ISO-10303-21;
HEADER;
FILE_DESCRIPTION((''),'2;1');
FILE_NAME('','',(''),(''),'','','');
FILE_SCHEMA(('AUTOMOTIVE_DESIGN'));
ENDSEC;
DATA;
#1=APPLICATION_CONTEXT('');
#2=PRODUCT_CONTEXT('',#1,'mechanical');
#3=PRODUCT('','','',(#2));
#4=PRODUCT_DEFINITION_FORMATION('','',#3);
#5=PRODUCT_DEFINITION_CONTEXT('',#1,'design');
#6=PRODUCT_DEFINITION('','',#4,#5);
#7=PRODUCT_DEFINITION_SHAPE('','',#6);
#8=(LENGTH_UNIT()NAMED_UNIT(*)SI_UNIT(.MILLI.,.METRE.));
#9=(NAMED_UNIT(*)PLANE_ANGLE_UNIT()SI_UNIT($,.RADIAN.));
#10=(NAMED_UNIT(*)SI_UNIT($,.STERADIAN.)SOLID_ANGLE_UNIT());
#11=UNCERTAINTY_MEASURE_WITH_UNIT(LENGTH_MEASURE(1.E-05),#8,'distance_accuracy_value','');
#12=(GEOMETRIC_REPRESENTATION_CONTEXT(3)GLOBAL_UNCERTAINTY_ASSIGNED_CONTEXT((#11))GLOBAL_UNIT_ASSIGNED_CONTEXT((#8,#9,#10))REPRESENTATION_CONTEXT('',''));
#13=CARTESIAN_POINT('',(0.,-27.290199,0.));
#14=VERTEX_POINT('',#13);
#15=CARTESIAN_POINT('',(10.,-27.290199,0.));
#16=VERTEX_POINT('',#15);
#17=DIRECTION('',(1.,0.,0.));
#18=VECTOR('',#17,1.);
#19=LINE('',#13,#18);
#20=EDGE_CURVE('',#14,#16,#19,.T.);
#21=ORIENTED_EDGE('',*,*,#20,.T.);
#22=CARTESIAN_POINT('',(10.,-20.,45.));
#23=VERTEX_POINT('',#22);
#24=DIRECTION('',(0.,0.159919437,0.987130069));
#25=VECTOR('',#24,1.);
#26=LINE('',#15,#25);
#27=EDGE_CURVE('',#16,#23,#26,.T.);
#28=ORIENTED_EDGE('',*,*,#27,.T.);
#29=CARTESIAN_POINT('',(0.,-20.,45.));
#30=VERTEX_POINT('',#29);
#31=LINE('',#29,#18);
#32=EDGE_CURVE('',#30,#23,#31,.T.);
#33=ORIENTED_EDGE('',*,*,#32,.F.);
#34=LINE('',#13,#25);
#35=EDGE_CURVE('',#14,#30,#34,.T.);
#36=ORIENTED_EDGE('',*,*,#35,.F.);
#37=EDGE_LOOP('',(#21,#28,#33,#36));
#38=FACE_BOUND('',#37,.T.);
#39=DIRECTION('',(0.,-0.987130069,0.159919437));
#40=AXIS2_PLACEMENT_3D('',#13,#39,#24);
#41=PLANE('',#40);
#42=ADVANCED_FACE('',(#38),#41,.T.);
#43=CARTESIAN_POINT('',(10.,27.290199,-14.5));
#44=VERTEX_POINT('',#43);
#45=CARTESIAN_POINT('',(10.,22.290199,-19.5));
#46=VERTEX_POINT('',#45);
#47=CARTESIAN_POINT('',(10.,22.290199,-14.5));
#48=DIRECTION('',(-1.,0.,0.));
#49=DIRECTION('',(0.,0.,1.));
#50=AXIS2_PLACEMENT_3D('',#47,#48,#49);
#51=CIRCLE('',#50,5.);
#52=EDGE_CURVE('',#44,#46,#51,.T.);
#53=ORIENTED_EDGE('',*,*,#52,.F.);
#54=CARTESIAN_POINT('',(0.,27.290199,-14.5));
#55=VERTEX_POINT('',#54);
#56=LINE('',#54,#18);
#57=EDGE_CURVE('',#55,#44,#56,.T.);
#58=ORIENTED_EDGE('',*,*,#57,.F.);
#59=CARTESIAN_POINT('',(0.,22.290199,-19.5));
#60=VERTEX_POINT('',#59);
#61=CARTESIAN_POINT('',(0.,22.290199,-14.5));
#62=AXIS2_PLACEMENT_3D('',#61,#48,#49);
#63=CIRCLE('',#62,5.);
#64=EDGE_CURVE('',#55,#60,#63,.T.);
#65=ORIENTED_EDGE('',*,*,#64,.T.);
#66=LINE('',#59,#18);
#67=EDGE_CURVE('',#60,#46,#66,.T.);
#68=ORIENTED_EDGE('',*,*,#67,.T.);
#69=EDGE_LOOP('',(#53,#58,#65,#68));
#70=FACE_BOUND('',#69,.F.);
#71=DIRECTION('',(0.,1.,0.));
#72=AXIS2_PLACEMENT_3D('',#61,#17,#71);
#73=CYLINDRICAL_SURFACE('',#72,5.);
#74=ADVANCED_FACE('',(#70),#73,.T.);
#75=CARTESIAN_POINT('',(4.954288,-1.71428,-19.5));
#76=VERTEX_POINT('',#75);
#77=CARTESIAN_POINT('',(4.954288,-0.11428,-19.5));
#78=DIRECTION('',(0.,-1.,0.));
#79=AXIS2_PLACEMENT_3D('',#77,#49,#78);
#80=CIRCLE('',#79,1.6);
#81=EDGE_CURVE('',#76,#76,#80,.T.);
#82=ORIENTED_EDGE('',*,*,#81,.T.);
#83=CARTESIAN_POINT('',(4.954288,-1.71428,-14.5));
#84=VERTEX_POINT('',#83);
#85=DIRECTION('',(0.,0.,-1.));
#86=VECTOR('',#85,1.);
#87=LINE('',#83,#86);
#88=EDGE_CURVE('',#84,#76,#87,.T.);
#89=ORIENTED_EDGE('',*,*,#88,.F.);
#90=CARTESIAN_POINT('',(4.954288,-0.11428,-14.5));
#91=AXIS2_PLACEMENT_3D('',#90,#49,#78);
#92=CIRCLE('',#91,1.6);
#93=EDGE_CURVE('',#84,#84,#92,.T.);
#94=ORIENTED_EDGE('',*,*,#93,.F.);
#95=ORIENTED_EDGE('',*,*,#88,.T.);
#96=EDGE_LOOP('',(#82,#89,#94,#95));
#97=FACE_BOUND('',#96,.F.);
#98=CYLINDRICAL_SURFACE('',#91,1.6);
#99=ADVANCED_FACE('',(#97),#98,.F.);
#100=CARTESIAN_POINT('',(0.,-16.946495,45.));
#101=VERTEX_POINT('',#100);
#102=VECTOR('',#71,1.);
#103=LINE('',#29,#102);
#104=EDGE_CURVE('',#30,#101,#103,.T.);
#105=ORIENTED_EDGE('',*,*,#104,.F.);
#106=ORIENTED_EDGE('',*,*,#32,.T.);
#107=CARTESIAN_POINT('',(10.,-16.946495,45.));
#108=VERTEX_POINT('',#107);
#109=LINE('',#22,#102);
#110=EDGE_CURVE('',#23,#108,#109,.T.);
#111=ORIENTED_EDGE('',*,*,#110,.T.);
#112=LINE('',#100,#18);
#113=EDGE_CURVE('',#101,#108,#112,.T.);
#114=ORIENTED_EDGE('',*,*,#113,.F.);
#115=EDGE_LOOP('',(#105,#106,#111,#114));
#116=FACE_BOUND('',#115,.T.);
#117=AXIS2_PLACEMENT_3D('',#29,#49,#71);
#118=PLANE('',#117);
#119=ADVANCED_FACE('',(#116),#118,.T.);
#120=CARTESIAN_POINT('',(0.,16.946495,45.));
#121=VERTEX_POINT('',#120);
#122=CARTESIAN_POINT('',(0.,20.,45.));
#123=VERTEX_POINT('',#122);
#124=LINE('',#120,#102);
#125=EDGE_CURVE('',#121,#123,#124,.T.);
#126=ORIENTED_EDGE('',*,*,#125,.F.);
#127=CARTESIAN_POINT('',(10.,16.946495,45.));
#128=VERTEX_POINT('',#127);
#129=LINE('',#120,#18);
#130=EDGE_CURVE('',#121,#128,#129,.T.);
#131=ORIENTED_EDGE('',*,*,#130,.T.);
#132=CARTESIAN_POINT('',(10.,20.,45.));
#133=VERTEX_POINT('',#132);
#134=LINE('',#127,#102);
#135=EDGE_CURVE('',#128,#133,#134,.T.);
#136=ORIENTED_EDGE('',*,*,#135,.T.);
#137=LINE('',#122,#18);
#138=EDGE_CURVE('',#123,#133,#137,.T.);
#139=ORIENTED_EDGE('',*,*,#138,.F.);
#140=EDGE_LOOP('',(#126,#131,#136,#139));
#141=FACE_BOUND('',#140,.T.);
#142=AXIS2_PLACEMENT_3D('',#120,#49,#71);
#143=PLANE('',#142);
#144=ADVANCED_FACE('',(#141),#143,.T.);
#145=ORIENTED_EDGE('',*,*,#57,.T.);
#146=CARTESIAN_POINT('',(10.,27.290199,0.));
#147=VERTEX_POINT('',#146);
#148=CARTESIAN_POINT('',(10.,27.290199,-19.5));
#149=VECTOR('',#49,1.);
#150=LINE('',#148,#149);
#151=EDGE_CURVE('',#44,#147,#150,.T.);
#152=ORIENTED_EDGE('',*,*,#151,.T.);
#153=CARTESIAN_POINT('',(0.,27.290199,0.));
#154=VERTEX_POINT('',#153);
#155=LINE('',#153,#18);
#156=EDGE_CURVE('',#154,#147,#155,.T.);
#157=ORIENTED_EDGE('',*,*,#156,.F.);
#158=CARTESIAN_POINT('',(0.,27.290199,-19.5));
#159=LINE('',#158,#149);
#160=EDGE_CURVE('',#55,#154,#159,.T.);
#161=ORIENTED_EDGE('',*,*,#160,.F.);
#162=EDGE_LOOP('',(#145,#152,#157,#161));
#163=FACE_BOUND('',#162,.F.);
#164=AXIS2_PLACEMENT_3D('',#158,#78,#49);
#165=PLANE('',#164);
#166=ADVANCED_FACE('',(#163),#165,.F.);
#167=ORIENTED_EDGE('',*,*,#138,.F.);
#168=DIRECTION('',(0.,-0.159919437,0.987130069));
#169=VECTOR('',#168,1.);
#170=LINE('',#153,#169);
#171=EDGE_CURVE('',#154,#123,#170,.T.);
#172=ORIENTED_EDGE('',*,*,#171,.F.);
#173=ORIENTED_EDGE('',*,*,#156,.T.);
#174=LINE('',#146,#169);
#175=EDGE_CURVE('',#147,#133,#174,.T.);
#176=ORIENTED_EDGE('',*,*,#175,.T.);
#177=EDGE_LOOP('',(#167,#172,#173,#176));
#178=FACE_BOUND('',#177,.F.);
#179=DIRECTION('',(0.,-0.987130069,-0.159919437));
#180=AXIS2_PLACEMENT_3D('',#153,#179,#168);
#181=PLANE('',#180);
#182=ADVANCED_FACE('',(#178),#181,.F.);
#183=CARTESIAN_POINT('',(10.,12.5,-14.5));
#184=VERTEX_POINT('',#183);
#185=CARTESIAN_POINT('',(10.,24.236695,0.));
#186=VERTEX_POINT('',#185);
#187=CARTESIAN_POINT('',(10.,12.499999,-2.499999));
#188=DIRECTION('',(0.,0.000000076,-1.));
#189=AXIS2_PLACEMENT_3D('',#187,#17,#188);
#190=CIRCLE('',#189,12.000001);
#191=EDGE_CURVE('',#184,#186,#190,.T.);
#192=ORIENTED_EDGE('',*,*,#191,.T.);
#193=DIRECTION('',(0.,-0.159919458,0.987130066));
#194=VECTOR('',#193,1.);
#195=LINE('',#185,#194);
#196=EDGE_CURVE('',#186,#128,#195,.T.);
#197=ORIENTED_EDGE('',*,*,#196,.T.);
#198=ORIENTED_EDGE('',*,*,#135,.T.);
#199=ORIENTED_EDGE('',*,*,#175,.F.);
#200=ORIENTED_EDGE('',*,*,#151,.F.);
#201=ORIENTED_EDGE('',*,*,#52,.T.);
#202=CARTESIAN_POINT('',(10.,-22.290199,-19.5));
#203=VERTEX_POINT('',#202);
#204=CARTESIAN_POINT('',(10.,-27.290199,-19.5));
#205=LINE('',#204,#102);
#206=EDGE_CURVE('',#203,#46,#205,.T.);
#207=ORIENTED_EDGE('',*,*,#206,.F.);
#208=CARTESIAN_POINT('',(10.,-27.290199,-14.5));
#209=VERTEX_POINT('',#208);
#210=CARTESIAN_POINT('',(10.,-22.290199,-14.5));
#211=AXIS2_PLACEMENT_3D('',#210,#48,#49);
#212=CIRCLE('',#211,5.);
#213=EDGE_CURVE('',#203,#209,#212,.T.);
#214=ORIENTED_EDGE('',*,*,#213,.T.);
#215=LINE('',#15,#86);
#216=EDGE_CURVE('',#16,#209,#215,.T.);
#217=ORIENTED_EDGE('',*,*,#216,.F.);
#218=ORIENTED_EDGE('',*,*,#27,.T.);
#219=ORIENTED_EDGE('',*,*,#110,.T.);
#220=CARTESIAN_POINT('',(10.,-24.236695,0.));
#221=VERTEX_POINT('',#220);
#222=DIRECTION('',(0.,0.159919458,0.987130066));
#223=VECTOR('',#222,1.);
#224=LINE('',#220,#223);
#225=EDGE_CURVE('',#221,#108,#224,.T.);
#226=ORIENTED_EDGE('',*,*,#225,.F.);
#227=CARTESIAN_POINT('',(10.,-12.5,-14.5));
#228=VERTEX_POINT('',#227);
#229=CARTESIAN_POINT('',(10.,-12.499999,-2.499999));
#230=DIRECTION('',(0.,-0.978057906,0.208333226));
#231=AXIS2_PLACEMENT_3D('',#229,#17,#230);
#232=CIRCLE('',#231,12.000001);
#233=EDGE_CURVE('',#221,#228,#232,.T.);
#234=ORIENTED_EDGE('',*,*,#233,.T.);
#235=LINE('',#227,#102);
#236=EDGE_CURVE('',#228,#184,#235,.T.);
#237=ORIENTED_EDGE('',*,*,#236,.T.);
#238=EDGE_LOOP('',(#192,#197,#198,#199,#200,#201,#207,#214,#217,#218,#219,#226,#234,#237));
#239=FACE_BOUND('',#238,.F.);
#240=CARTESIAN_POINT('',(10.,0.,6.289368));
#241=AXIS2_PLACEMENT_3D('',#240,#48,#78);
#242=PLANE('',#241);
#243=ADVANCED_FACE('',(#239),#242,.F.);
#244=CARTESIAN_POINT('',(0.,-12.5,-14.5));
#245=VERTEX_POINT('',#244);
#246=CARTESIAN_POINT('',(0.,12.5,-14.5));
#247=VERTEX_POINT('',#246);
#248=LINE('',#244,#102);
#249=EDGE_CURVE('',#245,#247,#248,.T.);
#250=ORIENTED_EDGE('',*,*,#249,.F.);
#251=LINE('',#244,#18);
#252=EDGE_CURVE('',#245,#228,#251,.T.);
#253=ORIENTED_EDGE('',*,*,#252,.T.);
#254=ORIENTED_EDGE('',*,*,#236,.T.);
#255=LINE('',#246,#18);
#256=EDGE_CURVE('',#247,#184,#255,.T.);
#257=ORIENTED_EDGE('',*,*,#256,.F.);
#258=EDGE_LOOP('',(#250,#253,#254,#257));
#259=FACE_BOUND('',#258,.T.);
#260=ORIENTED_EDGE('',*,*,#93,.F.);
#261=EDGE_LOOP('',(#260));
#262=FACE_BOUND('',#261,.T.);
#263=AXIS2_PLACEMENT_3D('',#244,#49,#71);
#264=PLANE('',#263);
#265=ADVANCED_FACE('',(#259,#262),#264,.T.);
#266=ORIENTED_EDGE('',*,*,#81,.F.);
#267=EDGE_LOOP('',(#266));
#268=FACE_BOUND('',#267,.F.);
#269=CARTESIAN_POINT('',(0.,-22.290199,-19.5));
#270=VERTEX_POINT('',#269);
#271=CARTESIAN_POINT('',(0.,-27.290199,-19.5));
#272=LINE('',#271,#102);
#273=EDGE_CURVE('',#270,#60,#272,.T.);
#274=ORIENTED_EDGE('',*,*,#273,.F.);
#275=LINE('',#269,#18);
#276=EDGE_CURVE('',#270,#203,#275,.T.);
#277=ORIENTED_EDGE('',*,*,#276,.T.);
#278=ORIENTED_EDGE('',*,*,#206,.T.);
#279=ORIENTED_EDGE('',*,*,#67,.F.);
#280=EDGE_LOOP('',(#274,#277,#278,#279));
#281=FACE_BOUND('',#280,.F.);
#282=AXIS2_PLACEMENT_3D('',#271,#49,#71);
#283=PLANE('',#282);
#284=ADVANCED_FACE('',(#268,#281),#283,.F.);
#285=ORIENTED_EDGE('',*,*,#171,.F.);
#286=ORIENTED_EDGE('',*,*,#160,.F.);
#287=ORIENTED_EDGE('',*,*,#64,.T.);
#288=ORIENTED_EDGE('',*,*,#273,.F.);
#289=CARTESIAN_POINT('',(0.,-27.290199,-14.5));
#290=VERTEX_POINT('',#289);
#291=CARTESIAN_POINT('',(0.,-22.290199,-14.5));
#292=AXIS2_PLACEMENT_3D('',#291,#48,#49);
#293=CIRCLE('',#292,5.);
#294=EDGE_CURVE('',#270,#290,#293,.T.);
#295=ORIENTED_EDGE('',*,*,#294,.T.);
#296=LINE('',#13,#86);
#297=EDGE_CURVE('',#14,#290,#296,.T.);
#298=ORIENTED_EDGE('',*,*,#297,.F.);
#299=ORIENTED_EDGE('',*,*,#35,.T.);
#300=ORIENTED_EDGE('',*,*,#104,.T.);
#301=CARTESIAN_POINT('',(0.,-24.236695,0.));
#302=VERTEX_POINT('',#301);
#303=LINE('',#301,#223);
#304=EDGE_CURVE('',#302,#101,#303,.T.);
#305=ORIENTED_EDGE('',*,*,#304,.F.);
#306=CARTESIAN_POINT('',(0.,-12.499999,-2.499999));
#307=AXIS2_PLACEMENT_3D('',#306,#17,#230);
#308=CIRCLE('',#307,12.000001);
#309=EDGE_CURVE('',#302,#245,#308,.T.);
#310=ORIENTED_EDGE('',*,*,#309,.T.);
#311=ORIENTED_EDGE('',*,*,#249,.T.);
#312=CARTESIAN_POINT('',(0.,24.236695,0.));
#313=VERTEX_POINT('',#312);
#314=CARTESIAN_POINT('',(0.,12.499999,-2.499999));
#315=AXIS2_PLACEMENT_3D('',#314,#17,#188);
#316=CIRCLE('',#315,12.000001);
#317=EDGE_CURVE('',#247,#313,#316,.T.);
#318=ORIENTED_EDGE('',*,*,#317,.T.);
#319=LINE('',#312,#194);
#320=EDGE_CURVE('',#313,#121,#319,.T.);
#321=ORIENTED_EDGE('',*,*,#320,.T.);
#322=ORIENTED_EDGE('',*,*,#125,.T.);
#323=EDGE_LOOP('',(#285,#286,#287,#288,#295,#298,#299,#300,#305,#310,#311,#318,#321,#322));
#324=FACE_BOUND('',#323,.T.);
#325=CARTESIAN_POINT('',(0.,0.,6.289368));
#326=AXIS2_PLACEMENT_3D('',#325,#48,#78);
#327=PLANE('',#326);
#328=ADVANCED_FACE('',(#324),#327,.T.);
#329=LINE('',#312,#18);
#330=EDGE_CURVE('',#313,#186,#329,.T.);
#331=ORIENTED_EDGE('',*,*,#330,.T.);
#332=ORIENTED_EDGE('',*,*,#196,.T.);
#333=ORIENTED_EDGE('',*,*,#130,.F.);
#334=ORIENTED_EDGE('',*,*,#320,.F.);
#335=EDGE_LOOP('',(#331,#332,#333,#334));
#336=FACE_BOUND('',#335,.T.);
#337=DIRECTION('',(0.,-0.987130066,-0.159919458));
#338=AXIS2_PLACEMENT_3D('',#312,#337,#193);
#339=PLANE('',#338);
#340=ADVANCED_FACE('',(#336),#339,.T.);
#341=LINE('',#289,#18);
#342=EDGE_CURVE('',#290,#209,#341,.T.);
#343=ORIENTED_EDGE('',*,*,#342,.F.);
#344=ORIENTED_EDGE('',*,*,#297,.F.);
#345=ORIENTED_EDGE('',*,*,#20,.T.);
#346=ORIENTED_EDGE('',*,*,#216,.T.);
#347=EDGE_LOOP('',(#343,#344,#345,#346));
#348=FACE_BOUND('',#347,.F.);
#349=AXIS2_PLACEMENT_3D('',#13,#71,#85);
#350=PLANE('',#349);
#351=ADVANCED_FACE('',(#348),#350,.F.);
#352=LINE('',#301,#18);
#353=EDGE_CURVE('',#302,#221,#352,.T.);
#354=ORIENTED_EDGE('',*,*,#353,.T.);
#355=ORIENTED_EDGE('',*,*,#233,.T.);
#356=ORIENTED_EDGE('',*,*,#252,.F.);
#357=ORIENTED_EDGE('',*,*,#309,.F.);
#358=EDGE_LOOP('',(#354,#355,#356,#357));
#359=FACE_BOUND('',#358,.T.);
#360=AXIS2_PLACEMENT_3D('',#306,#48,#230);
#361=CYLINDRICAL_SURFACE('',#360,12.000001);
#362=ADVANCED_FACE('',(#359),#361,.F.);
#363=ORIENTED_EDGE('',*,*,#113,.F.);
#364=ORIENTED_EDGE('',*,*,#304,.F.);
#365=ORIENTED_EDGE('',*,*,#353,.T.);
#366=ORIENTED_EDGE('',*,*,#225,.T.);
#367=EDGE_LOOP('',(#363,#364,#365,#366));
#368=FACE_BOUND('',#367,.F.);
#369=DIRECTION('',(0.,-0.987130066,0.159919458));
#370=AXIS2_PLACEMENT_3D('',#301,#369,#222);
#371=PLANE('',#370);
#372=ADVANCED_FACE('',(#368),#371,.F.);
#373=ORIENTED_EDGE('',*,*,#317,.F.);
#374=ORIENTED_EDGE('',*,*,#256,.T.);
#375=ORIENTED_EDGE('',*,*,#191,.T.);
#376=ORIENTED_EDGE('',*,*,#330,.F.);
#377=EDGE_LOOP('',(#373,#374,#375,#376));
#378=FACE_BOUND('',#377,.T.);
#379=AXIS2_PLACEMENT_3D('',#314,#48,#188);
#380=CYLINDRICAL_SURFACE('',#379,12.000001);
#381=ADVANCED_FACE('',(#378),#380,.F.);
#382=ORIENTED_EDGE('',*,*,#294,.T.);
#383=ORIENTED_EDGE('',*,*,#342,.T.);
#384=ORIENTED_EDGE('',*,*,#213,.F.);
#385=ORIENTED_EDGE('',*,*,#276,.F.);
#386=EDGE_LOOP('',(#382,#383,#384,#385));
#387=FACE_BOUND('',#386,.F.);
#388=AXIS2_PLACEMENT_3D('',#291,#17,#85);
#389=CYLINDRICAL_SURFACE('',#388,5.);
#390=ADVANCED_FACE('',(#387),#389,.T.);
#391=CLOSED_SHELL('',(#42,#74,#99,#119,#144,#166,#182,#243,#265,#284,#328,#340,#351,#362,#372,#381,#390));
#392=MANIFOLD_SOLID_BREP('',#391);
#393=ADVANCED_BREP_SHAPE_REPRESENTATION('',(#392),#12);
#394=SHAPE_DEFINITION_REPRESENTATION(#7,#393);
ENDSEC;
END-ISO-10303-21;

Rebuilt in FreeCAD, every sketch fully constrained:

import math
import FreeCAD as App
import Part
import Sketcher


def edges_at(feature, points):
    """Names of the edges that pass closest to the given points."""
    edges = feature.Shape.Edges
    near = lambda p: min(range(len(edges)), key=lambda i: edges[i].distToShape(Part.Vertex(*p))[0])
    return sorted({f"Edge{near(p) + 1}" for p in points})

doc = App.newDocument("Part")
body = doc.addObject("PartDesign::Body", "Body")

sketch1 = doc.addObject("Sketcher::SketchObject", "Sketch")
body.addObject(sketch1)
sketch1.AttachmentSupport = (doc.YZ_Plane, [""])
sketch1.MapMode = "FlatFace"
sketch1.addGeometry(Part.LineSegment(App.Vector(12.5, -14.5, 0), App.Vector(-12.5, -14.5, 0)), False)
sketch1.addGeometry(Part.ArcOfCircle(Part.Circle(App.Vector(-12.499999, -2.499999, 0), App.Vector(0, 0, 1), 12.000001), math.radians(167.975307), math.radians(269.999996)), False)
sketch1.addGeometry(Part.LineSegment(App.Vector(-24.236695, 0, 0), App.Vector(-16.946495, 45, 0)), False)
sketch1.addGeometry(Part.LineSegment(App.Vector(-16.946495, 45, 0), App.Vector(-20, 45, 0)), False)
sketch1.addGeometry(Part.LineSegment(App.Vector(-20, 45, 0), App.Vector(-27.290199, 0, 0)), False)
sketch1.addGeometry(Part.LineSegment(App.Vector(-27.290199, 0, 0), App.Vector(-27.290199, -19.5, 0)), False)
sketch1.addGeometry(Part.LineSegment(App.Vector(-27.290199, -19.5, 0), App.Vector(27.290199, -19.5, 0)), False)
sketch1.addGeometry(Part.LineSegment(App.Vector(27.290199, -19.5, 0), App.Vector(27.290199, 0, 0)), False)
sketch1.addGeometry(Part.LineSegment(App.Vector(27.290199, 0, 0), App.Vector(20, 45, 0)), False)
sketch1.addGeometry(Part.LineSegment(App.Vector(20, 45, 0), App.Vector(16.946495, 45, 0)), False)
sketch1.addGeometry(Part.LineSegment(App.Vector(16.946495, 45, 0), App.Vector(24.236695, 0, 0)), False)
sketch1.addGeometry(Part.ArcOfCircle(Part.Circle(App.Vector(12.499999, -2.499999, 0), App.Vector(0, 0, 1), 12.000001), math.radians(-89.999996), math.radians(12.024693)), False)
sketch1.addConstraint(Sketcher.Constraint("Tangent", 0, 2, 1, 2))
sketch1.addConstraint(Sketcher.Constraint("Coincident", 1, 1, 2, 1))
sketch1.addConstraint(Sketcher.Constraint("Coincident", 2, 2, 3, 1))
sketch1.addConstraint(Sketcher.Constraint("Coincident", 3, 2, 4, 1))
sketch1.addConstraint(Sketcher.Constraint("Coincident", 4, 2, 5, 1))
sketch1.addConstraint(Sketcher.Constraint("Coincident", 5, 2, 6, 1))
sketch1.addConstraint(Sketcher.Constraint("Coincident", 6, 2, 7, 1))
sketch1.addConstraint(Sketcher.Constraint("Coincident", 7, 2, 8, 1))
sketch1.addConstraint(Sketcher.Constraint("Coincident", 8, 2, 9, 1))
sketch1.addConstraint(Sketcher.Constraint("Coincident", 9, 2, 10, 1))
sketch1.addConstraint(Sketcher.Constraint("Coincident", 10, 2, 11, 2))
sketch1.addConstraint(Sketcher.Constraint("Tangent", 11, 1, 0, 1))
sketch1.addConstraint(Sketcher.Constraint("Horizontal", 0))
sketch1.addConstraint(Sketcher.Constraint("Horizontal", 3))
sketch1.addConstraint(Sketcher.Constraint("Vertical", 5))
sketch1.addConstraint(Sketcher.Constraint("Horizontal", 6))
sketch1.addConstraint(Sketcher.Constraint("Vertical", 7))
sketch1.addConstraint(Sketcher.Constraint("Horizontal", 9))
sketch1.addConstraint(Sketcher.Constraint("Equal", 1, 11))
sketch1.addConstraint(Sketcher.Constraint("Symmetric", 4, 2, 7, 2, -1, 1))
sketch1.addConstraint(Sketcher.Constraint("Symmetric", 1, 1, 10, 2, -1, 1))
sketch1.addConstraint(Sketcher.Constraint("Symmetric", 3, 2, 8, 2, -2))
sketch1.addConstraint(Sketcher.Constraint("PointOnObject", 1, 1, -1))
sketch1.addConstraint(Sketcher.Constraint("PointOnObject", 4, 2, -1))
sketch1.addConstraint(Sketcher.Constraint("Parallel", 2, 4))
sketch1.addConstraint(Sketcher.Constraint("Parallel", 8, 10))
sketch1.addConstraint(Sketcher.Constraint("Radius", 1, 12.000001))
sketch1.addConstraint(Sketcher.Constraint("DistanceX", 0, 2, 0, 1, 25.0))
sketch1.addConstraint(Sketcher.Constraint("DistanceY", 5, 2, 5, 1, 19.5))
sketch1.addConstraint(Sketcher.Constraint("DistanceY", -1, 1, 2, 2, 45.0))
sketch1.addConstraint(Sketcher.Constraint("DistanceX", 3, 2, -1, 1, 20.0))
sketch1.addConstraint(Sketcher.Constraint("DistanceY", 5, 2, 0, 2, 5.0))
sketch1.addConstraint(Sketcher.Constraint("DistanceX", 6, 1, 6, 2, 54.580398))
pad1 = doc.addObject("PartDesign::Pad", "Pad")
body.addObject(pad1)
pad1.Profile = sketch1
pad1.Length = 10
doc.recompute()

fillet = doc.addObject("PartDesign::Fillet", "Fillet")
body.addObject(fillet)
fillet.Base = (pad1, edges_at(pad1, [(5, -27.29, -19.5), (5, 27.29, -19.5)]))
fillet.Radius = 5

sketch2 = doc.addObject("Sketcher::SketchObject", "Sketch001")
body.addObject(sketch2)
sketch2.AttachmentSupport = (doc.XY_Plane, [""])
sketch2.MapMode = "FlatFace"
sketch2.AttachmentOffset = App.Placement(App.Vector(0, 0, -14.5), App.Rotation())
sketch2.addGeometry(Part.Circle(App.Vector(4.954288, -0.11428, 0), App.Vector(0, 0, 1), 1.6), False)
sketch2.addConstraint(Sketcher.Constraint("Diameter", 0, 3.2))
sketch2.addConstraint(Sketcher.Constraint("DistanceY", 0, 3, -1, 1, 0.11428))
sketch2.addConstraint(Sketcher.Constraint("DistanceX", -1, 1, 0, 3, 4.954288))
pocket1 = doc.addObject("PartDesign::Pocket", "Pocket")
body.addObject(pocket1)
pocket1.Profile = sketch2
pocket1.Type = "ThroughAll"

doc.recompute()
